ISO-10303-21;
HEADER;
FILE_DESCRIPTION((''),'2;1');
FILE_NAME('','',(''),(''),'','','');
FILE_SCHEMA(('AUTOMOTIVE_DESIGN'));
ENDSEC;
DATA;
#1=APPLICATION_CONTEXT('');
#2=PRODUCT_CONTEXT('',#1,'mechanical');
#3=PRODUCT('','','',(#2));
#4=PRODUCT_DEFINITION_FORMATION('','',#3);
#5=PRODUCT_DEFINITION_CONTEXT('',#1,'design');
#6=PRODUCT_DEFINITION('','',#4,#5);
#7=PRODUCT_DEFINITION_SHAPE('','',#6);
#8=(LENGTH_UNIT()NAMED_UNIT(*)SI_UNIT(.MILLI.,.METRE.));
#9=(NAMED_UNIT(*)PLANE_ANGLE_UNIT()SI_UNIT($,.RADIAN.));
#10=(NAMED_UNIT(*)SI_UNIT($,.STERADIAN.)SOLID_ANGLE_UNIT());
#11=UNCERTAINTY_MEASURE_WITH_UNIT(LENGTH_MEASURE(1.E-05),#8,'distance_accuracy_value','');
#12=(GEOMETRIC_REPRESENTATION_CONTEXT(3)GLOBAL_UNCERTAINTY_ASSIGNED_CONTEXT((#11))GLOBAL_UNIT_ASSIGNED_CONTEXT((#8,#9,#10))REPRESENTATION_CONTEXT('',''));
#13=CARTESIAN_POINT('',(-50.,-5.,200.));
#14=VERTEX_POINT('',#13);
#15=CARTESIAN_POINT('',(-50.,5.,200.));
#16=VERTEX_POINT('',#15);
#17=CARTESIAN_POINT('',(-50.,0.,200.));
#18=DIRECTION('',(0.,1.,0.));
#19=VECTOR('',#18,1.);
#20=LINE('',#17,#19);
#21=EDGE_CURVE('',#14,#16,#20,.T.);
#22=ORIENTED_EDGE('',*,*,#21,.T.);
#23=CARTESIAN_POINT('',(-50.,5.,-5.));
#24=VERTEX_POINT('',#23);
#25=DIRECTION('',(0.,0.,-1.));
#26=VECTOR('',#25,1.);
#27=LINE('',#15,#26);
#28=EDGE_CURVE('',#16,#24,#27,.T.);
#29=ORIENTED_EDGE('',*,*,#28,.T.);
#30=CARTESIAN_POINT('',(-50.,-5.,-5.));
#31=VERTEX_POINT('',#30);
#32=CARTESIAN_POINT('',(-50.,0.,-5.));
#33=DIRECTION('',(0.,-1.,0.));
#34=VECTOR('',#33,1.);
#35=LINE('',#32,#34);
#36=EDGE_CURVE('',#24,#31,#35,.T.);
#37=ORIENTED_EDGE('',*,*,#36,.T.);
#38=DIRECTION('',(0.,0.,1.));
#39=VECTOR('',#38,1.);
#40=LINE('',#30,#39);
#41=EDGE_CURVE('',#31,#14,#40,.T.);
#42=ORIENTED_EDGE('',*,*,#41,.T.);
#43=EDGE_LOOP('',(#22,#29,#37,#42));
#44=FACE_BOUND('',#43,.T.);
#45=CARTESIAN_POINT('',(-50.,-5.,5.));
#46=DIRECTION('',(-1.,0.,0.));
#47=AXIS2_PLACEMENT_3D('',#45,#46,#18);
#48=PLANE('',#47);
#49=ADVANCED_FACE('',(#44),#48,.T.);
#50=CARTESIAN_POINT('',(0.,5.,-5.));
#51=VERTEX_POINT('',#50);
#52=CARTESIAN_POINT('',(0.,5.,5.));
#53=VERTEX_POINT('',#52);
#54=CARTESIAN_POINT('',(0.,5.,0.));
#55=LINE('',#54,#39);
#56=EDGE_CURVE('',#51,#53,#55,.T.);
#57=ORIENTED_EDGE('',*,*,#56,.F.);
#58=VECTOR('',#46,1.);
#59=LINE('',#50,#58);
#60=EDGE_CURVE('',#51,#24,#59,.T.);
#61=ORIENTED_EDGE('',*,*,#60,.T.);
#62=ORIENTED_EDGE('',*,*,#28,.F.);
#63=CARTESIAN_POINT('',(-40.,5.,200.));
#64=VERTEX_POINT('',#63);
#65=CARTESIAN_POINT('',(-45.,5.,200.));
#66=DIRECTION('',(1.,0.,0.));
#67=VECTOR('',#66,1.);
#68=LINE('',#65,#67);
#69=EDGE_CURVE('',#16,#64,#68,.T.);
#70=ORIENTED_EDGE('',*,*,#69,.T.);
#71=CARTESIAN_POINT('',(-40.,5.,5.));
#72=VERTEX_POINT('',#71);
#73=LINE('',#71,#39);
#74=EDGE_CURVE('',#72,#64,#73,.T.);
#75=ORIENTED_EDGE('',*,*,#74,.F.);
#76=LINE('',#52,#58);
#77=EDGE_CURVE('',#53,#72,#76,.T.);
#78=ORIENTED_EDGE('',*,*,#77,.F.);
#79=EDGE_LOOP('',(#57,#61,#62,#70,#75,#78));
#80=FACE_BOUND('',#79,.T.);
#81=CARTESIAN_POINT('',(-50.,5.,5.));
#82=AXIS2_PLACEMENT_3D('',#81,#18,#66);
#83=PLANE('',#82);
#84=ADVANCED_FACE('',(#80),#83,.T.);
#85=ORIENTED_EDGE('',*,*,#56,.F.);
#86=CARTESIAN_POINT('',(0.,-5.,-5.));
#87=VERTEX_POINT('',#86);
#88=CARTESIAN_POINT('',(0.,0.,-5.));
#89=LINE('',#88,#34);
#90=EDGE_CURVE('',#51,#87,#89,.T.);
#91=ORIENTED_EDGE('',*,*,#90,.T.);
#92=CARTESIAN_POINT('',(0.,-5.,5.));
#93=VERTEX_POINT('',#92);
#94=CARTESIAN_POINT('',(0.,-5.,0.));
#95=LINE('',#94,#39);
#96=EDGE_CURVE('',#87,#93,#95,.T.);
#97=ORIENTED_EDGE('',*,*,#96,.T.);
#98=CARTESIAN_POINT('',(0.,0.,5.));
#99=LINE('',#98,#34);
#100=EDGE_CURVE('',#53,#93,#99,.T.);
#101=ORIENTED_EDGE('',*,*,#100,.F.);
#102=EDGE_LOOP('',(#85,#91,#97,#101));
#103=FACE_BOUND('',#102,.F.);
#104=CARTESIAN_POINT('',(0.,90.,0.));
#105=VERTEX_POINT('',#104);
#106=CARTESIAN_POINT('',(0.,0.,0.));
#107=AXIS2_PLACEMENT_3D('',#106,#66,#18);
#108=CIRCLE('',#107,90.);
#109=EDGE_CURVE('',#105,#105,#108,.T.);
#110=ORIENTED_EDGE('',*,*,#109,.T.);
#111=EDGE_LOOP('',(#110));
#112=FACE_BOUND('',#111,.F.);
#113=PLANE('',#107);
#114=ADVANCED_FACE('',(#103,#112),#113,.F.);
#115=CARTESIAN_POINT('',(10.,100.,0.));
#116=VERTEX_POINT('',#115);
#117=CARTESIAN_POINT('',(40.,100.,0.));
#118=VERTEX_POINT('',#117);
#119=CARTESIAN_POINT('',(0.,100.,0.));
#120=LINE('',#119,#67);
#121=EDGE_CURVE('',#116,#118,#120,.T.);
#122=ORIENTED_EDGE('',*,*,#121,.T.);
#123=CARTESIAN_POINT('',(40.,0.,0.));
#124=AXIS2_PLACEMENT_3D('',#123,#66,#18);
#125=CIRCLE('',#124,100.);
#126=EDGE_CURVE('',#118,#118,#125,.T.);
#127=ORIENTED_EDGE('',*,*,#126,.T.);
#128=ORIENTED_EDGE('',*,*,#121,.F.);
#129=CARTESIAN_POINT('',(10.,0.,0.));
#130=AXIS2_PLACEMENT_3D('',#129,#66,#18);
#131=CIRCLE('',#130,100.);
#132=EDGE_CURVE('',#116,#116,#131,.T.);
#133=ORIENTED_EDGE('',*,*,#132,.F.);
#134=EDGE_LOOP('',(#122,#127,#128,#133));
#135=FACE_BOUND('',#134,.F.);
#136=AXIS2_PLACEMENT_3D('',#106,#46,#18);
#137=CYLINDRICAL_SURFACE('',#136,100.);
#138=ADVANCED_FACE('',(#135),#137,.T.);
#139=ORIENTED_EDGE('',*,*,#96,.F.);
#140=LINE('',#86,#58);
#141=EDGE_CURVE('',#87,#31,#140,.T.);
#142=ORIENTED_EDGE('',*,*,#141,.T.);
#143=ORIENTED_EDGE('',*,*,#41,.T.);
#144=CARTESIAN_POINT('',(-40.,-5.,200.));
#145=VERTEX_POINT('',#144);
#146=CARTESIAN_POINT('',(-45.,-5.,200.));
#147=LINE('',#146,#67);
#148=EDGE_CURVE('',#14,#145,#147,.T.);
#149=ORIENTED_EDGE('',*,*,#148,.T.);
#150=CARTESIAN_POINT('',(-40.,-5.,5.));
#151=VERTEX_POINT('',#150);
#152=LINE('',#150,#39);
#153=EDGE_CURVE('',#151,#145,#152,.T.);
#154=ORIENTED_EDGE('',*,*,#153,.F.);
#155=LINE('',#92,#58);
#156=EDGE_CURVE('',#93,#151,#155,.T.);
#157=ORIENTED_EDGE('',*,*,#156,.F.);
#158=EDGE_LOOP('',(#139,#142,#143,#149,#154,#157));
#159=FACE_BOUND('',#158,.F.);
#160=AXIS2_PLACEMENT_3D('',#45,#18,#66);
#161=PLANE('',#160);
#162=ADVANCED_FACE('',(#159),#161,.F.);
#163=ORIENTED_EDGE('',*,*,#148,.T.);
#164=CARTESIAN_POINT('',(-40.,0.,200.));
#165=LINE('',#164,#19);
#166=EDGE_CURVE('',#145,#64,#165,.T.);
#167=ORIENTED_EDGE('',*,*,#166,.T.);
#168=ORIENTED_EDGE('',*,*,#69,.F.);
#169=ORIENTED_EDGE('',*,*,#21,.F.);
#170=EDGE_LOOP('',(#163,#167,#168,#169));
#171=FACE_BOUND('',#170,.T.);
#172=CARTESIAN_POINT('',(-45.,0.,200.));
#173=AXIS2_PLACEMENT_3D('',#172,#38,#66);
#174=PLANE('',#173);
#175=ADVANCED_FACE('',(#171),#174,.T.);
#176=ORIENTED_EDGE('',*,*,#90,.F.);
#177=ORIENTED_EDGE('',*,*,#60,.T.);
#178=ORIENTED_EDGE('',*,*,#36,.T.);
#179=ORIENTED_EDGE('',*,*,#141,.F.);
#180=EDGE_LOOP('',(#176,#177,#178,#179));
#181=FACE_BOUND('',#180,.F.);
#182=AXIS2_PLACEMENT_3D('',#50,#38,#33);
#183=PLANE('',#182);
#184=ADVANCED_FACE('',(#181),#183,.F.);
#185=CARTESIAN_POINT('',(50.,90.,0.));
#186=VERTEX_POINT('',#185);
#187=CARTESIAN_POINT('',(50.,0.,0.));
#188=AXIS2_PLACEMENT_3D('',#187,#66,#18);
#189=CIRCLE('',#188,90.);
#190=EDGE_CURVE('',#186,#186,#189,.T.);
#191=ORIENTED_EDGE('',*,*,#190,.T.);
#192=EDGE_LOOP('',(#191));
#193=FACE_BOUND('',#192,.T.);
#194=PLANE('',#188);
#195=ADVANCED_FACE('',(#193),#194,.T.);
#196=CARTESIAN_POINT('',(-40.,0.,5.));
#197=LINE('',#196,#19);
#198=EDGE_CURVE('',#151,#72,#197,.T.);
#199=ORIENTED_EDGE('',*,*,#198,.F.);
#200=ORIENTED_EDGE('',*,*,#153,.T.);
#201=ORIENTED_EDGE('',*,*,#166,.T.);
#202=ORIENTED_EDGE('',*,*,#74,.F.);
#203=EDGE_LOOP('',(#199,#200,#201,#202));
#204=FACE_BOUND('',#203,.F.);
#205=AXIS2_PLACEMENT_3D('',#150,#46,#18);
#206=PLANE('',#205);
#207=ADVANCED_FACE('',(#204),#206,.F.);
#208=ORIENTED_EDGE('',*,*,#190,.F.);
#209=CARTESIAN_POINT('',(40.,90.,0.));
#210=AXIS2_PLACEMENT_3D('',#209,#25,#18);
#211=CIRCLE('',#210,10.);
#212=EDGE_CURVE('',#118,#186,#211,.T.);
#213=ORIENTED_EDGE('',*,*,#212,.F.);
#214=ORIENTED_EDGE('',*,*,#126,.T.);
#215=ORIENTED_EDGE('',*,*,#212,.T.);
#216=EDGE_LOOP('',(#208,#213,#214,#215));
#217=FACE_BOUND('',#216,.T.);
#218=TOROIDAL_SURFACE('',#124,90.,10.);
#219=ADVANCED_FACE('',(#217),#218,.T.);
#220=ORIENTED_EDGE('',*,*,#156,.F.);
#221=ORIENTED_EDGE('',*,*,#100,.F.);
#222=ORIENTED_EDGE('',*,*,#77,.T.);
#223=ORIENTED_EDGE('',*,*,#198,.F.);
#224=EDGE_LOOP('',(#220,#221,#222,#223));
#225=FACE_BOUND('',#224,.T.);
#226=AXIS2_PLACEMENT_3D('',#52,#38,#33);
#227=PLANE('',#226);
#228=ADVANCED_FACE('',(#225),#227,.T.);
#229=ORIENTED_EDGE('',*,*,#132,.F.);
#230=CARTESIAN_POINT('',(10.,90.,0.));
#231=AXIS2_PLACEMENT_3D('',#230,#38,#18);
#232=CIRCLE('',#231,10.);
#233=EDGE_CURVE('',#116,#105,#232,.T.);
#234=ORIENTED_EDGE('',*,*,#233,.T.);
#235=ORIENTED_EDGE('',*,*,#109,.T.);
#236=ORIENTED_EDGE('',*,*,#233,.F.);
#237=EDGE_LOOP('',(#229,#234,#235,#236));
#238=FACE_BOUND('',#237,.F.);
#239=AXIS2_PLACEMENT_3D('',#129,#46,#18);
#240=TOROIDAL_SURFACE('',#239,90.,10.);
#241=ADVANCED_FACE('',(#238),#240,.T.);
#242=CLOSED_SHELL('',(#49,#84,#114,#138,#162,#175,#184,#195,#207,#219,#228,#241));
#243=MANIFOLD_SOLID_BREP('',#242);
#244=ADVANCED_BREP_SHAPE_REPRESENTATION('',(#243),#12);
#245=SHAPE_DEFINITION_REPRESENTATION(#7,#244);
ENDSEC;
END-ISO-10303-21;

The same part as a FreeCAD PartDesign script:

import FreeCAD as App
import Part
import Sketcher


def edges_at(feature, points):
    """Names of the edges that pass closest to the given points."""
    edges = feature.Shape.Edges
    near = lambda p: min(range(len(edges)), key=lambda i: edges[i].distToShape(Part.Vertex(*p))[0])
    return sorted({f"Edge{near(p) + 1}" for p in points})

doc = App.newDocument("Part")
body = doc.addObject("PartDesign::Body", "Body")

sketch1 = doc.addObject("Sketcher::SketchObject", "Sketch")
body.addObject(sketch1)
sketch1.AttachmentSupport = (doc.YZ_Plane, [""])
sketch1.MapMode = "FlatFace"
sketch1.addGeometry(Part.Circle(App.Vector(0, 0, 0), App.Vector(0, 0, 1), 100), False)
sketch1.addConstraint(Sketcher.Constraint("Coincident", 0, 3, -1, 1))
sketch1.addConstraint(Sketcher.Constraint("Diameter", 0, 200.0))
pad1 = doc.addObject("PartDesign::Pad", "Pad")
body.addObject(pad1)
pad1.Profile = sketch1
pad1.Length = 50
doc.recompute()

fillet = doc.addObject("PartDesign::Fillet", "Fillet")
body.addObject(fillet)
fillet.Base = (pad1, edges_at(pad1, [(50, -100, 0), (0, -100, 0)]))
fillet.Radius = 10

sketch2 = doc.addObject("Sketcher::SketchObject", "Sketch001")
body.addObject(sketch2)
sketch2.AttachmentSupport = (doc.YZ_Plane, [""])
sketch2.MapMode = "FlatFace"
sketch2.addGeometry(Part.LineSegment(App.Vector(5, 5, 0), App.Vector(5, -5, 0)), False)
sketch2.addGeometry(Part.LineSegment(App.Vector(5, -5, 0), App.Vector(-5, -5, 0)), False)
sketch2.addGeometry(Part.LineSegment(App.Vector(-5, -5, 0), App.Vector(-5, 5, 0)), False)
sketch2.addGeometry(Part.LineSegment(App.Vector(-5, 5, 0), App.Vector(5, 5, 0)), False)
sketch2.addConstraint(Sketcher.Constraint("Coincident", 0, 2, 1, 1))
sketch2.addConstraint(Sketcher.Constraint("Coincident", 1, 2, 2, 1))
sketch2.addConstraint(Sketcher.Constraint("Coincident", 2, 2, 3, 1))
sketch2.addConstraint(Sketcher.Constraint("Coincident", 3, 2, 0, 1))
sketch2.addConstraint(Sketcher.Constraint("Vertical", 0))
sketch2.addConstraint(Sketcher.Constraint("Horizontal", 1))
sketch2.addConstraint(Sketcher.Constraint("Vertical", 2))
sketch2.addConstraint(Sketcher.Constraint("Horizontal", 3))
sketch2.addConstraint(Sketcher.Constraint("Symmetric", 0, 2, 2, 2, -1, 1))
sketch2.addConstraint(Sketcher.Constraint("Equal", 3, 0))
sketch2.addConstraint(Sketcher.Constraint("DistanceX", 1, 2, 1, 1, 10.0))
pad2 = doc.addObject("PartDesign::Pad", "Pad001")
body.addObject(pad2)
pad2.Profile = sketch2
pad2.Length = 50
pad2.Reversed = True

sketch3 = doc.addObject("Sketcher::SketchObject", "Sketch002")
body.addObject(sketch3)
sketch3.AttachmentSupport = (doc.XY_Plane, [""])
sketch3.MapMode = "FlatFace"
sketch3.AttachmentOffset = App.Placement(App.Vector(0, 0, 5), App.Rotation())
sketch3.addGeometry(Part.LineSegment(App.Vector(-50, 5, 0), App.Vector(-50, -5, 0)), False)
sketch3.addGeometry(Part.LineSegment(App.Vector(-50, -5, 0), App.Vector(-40, -5, 0)), False)
sketch3.addGeometry(Part.LineSegment(App.Vector(-40, -5, 0), App.Vector(-40, 5, 0)), False)
sketch3.addGeometry(Part.LineSegment(App.Vector(-40, 5, 0), App.Vector(-50, 5, 0)), False)
sketch3.addConstraint(Sketcher.Constraint("Coincident", 0, 2, 1, 1))
sketch3.addConstraint(Sketcher.Constraint("Coincident", 1, 2, 2, 1))
sketch3.addConstraint(Sketcher.Constraint("Coincident", 2, 2, 3, 1))
sketch3.addConstraint(Sketcher.Constraint("Coincident", 3, 2, 0, 1))
sketch3.addConstraint(Sketcher.Constraint("Vertical", 0))
sketch3.addConstraint(Sketcher.Constraint("Horizontal", 1))
sketch3.addConstraint(Sketcher.Constraint("Vertical", 2))
sketch3.addConstraint(Sketcher.Constraint("Horizontal", 3))
sketch3.addConstraint(Sketcher.Constraint("Equal", 3, 0))
sketch3.addConstraint(Sketcher.Constraint("DistanceX", 1, 1, 1, 2, 10.0))
sketch3.addConstraint(Sketcher.Constraint("DistanceX", 0, 2, -1, 1, 50.0))
sketch3.addConstraint(Sketcher.Constraint("DistanceY", 0, 2, -1, 1, 5.0))
pad3 = doc.addObject("PartDesign::Pad", "Pad002")
body.addObject(pad3)
pad3.Profile = sketch3
pad3.Length = 195

doc.recompute()
